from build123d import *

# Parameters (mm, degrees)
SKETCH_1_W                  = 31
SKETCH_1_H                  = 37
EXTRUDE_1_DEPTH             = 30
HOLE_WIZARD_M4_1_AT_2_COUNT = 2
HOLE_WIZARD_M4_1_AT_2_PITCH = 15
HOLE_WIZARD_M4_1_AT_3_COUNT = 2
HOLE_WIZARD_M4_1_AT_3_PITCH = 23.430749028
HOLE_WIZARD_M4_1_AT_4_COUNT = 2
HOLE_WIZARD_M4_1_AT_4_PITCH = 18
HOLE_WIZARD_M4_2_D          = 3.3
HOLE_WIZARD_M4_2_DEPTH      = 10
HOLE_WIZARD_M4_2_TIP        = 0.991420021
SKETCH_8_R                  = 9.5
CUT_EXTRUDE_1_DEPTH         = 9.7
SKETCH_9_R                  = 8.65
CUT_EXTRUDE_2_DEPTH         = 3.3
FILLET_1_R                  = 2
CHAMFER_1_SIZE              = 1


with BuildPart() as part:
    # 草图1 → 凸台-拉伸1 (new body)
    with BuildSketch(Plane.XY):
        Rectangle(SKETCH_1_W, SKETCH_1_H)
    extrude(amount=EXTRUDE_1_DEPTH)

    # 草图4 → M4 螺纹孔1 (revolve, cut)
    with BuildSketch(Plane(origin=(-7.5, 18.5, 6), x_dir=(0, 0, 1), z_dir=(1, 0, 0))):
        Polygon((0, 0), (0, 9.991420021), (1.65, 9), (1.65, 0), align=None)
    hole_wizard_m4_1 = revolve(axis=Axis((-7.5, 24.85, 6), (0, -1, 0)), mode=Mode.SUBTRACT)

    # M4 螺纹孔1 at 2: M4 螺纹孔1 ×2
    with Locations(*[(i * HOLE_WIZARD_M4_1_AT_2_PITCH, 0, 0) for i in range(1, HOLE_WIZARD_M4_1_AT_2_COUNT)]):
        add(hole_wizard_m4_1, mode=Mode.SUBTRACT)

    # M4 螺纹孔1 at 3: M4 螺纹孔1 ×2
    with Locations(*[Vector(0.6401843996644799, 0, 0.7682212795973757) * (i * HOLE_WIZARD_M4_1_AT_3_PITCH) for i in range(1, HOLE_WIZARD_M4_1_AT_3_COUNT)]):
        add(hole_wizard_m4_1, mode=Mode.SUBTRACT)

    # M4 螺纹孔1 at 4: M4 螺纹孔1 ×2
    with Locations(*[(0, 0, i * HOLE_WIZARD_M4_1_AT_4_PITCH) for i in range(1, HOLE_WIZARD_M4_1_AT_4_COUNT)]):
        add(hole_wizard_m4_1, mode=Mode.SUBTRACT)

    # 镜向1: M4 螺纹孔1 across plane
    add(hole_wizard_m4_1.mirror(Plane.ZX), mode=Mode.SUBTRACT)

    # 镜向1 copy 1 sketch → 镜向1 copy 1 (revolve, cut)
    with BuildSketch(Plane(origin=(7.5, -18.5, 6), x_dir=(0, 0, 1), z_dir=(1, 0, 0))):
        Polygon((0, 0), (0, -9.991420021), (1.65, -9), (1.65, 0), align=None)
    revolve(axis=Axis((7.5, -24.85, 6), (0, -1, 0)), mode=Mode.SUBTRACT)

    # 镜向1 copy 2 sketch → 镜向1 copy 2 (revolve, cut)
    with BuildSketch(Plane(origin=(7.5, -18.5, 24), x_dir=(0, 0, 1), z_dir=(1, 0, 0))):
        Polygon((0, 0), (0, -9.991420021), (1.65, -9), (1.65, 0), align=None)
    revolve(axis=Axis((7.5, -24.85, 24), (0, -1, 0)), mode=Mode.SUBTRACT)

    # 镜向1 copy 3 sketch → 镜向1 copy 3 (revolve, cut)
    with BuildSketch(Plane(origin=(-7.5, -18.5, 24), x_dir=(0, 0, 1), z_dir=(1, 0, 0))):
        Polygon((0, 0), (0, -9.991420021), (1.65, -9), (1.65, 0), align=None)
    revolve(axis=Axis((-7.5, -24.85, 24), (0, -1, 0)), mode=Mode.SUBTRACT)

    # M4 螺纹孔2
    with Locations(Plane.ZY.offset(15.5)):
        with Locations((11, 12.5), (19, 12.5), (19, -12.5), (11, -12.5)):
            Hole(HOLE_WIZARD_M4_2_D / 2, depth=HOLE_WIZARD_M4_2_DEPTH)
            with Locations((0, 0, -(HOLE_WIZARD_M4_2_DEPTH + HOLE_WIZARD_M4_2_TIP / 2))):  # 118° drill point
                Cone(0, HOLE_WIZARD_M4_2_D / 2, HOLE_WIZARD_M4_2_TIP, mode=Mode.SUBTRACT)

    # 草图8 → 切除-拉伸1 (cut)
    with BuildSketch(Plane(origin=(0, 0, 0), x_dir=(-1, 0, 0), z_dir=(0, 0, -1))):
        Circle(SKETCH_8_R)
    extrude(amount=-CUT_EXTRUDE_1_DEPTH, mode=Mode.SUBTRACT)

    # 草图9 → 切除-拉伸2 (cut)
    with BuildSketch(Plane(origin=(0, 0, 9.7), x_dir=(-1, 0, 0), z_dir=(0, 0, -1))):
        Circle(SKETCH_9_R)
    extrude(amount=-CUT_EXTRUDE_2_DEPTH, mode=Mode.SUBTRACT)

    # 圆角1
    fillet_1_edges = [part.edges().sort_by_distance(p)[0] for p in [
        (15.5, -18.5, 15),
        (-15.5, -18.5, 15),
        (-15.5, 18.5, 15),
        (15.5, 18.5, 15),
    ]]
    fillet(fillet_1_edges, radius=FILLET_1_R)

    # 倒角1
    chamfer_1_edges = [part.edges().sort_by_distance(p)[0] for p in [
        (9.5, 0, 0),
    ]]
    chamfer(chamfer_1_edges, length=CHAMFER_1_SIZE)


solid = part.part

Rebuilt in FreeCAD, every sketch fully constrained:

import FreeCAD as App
import Part
import Sketcher
from FreeCAD import Vector
Q = App.Units.Quantity


def edges_at(feature, points):
    """Names of the edges that pass closest to the given points."""
    edges = feature.Shape.Edges
    near = lambda p: min(range(len(edges)), key=lambda i: edges[i].distToShape(Part.Vertex(*p))[0])
    return sorted({f"Edge{near(p) + 1}" for p in points})

doc = App.newDocument("Part")
body = doc.addObject("PartDesign::Body", "Body")

sketch1 = doc.addObject("Sketcher::SketchObject", "Sketch")
body.addObject(sketch1)
sketch1.AttachmentSupport = (doc.XY_Plane, [""])
sketch1.MapMode = "FlatFace"
sketch1.addGeometry([
    Part.LineSegment(Vector(-16, 18, 0), Vector(-16, -18, 0)),
    Part.LineSegment(Vector(-16, -18, 0), Vector(16, -18, 0)),
    Part.LineSegment(Vector(16, -18, 0), Vector(16, 18, 0)),
    Part.LineSegment(Vector(16, 18, 0), Vector(-16, 18, 0)),
], False)
sketch1.addConstraint([
    Sketcher.Constraint("Coincident", 0, 2, 1, 1),
    Sketcher.Constraint("Coincident", 1, 2, 2, 1),
    Sketcher.Constraint("Coincident", 2, 2, 3, 1),
    Sketcher.Constraint("Coincident", 3, 2, 0, 1),
    Sketcher.Constraint("Vertical", 0),
    Sketcher.Constraint("Horizontal", 1),
    Sketcher.Constraint("Vertical", 2),
    Sketcher.Constraint("Horizontal", 3),
    Sketcher.Constraint("Symmetric", 0, 2, 2, 2, -1, 1),
    Sketcher.Constraint("DistanceX", 1, 1, 1, 2, Q("31 mm")),
    Sketcher.Constraint("DistanceY", 0, 2, 0, 1, Q("37 mm")),
])
pad1 = doc.addObject("PartDesign::Pad", "Pad")
body.addObject(pad1)
pad1.Profile = sketch1
pad1.Length = 30

sketch2 = doc.addObject("Sketcher::SketchObject", "Sketch001")
body.addObject(sketch2)
sketch2.AttachmentSupport = (doc.YZ_Plane, [""])
sketch2.MapMode = "FlatFace"
sketch2.AttachmentOffset = App.Placement(Vector(0, 0, -7.5), App.Rotation())
sketch2.addGeometry([
    Part.LineSegment(Vector(8.5, 6, 0), Vector(18.5, 6, 0)),
    Part.LineSegment(Vector(18.5, 6, 0), Vector(18.5, 7.7, 0)),
    Part.LineSegment(Vector(18.5, 7.7, 0), Vector(9.5, 7.7, 0)),
    Part.LineSegment(Vector(9.5, 7.7, 0), Vector(8.5, 6, 0)),
], False)
sketch2.addGeometry(Part.LineSegment(Vector(18.5, 6, 0), Vector(8.5, 6, 0)), True)
sketch2.addConstraint([
    Sketcher.Constraint("Coincident", 0, 2, 1, 1),
    Sketcher.Constraint("Coincident", 1, 2, 2, 1),
    Sketcher.Constraint("Coincident", 2, 2, 3, 1),
    Sketcher.Constraint("Coincident", 3, 2, 0, 1),
    Sketcher.Constraint("Horizontal", 0),
    Sketcher.Constraint("Vertical", 1),
    Sketcher.Constraint("Horizontal", 2),
    Sketcher.Constraint("Horizontal", 4),
    Sketcher.Constraint("Coincident", 4, 1, 0, 2),
    Sketcher.Constraint("Equal", 0, 4),
    Sketcher.Constraint("DistanceX", 2, 2, 2, 1, Q("9 mm")),
    Sketcher.Constraint("Angle", 3, Q("-121 deg")),
    Sketcher.Constraint("DistanceY", -1, 1, 0, 2, Q("6 mm")),
    Sketcher.Constraint("DistanceY", 1, 1, 1, 2, Q("1.65 mm")),
    Sketcher.Constraint("DistanceX", -1, 1, 0, 2, Q("18.5 mm")),
])
groove = doc.addObject("PartDesign::Groove", "Groove")
body.addObject(groove)
groove.Profile = sketch2
groove.ReferenceAxis = (sketch2, ["Axis0"])
groove.Angle = 360
doc.recompute()

linearpattern = doc.addObject("PartDesign::LinearPattern", "LinearPattern")
body.addObject(linearpattern)
linearpattern.Originals = [groove]
linearpattern.Direction = (doc.X_Axis, [""])
linearpattern.Mode = "offset"
linearpattern.Offset = 15
linearpattern.Occurrences = 2
body.Tip = linearpattern
doc.recompute()

datumline = doc.addObject("PartDesign::Line", "DatumLine")
body.addObject(datumline)
datumline.Placement = App.Placement(Vector(0, 0, 0), App.Rotation(Vector(0, 0, 1), Vector(0.6401844, 0, 0.76822128)))
linearpattern2 = doc.addObject("PartDesign::LinearPattern", "LinearPattern001")
body.addObject(linearpattern2)
linearpattern2.Originals = [groove]
linearpattern2.Direction = (datumline, [""])
linearpattern2.Mode = "offset"
linearpattern2.Offset = 23.430749
linearpattern2.Occurrences = 2
body.Tip = linearpattern2
doc.recompute()

linearpattern3 = doc.addObject("PartDesign::LinearPattern", "LinearPattern002")
body.addObject(linearpattern3)
linearpattern3.Originals = [groove]
linearpattern3.Direction = (doc.Z_Axis, [""])
linearpattern3.Mode = "offset"
linearpattern3.Offset = 18
linearpattern3.Occurrences = 2
body.Tip = linearpattern3
doc.recompute()

mirrored = doc.addObject("PartDesign::Mirrored", "Mirrored")
body.addObject(mirrored)
mirrored.Originals = [groove]
mirrored.MirrorPlane = (doc.XZ_Plane, [""])
body.Tip = mirrored

sketch3 = doc.addObject("Sketcher::SketchObject", "Sketch002")
body.addObject(sketch3)
sketch3.AttachmentSupport = (doc.YZ_Plane, [""])
sketch3.MapMode = "FlatFace"
sketch3.AttachmentOffset = App.Placement(Vector(0, 0, 7.5), App.Rotation())
sketch3.addGeometry([
    Part.LineSegment(Vector(-18.5, 6, 0), Vector(-8.5, 6, 0)),
    Part.LineSegment(Vector(-8.5, 6, 0), Vector(-9.5, 7.7, 0)),
    Part.LineSegment(Vector(-9.5, 7.7, 0), Vector(-18.5, 7.7, 0)),
    Part.LineSegment(Vector(-18.5, 7.7, 0), Vector(-18.5, 6, 0)),
], False)
sketch3.addGeometry(Part.LineSegment(Vector(-8.5, 6, 0), Vector(-18.5, 6, 0)), True)
sketch3.addConstraint([
    Sketcher.Constraint("Coincident", 0, 2, 1, 1),
    Sketcher.Constraint("Coincident", 1, 2, 2, 1),
    Sketcher.Constraint("Coincident", 2, 2, 3, 1),
    Sketcher.Constraint("Coincident", 3, 2, 0, 1),
    Sketcher.Constraint("Horizontal", 0),
    Sketcher.Constraint("Horizontal", 2),
    Sketcher.Constraint("Vertical", 3),
    Sketcher.Constraint("Horizontal", 4),
    Sketcher.Constraint("Coincident", 4, 1, 0, 2),
    Sketcher.Constraint("Vertical", 2, 2, 4, 2),
    Sketcher.Constraint("DistanceX", 2, 2, 2, 1, Q("9 mm")),
    Sketcher.Constraint("Angle", 1, Q("121 deg")),
    Sketcher.Constraint("DistanceY", -1, 1, 0, 2, Q("6 mm")),
    Sketcher.Constraint("DistanceY", 3, 2, 3, 1, Q("1.65 mm")),
    Sketcher.Constraint("DistanceX", 1, 2, -1, 1, Q("9.5 mm")),
])
groove2 = doc.addObject("PartDesign::Groove", "Groove001")
body.addObject(groove2)
groove2.Profile = sketch3
groove2.ReferenceAxis = (sketch3, ["Axis0"])
groove2.Angle = 360

sketch4 = doc.addObject("Sketcher::SketchObject", "Sketch003")
body.addObject(sketch4)
sketch4.AttachmentSupport = (doc.YZ_Plane, [""])
sketch4.MapMode = "FlatFace"
sketch4.AttachmentOffset = App.Placement(Vector(0, 0, 7.5), App.Rotation())
sketch4.addGeometry([
    Part.LineSegment(Vector(-18.5, 24, 0), Vector(-8.5, 24, 0)),
    Part.LineSegment(Vector(-8.5, 24, 0), Vector(-9.5, 25.6, 0)),
    Part.LineSegment(Vector(-9.5, 25.6, 0), Vector(-18.5, 25.6, 0)),
    Part.LineSegment(Vector(-18.5, 25.6, 0), Vector(-18.5, 24, 0)),
], False)
sketch4.addGeometry(Part.LineSegment(Vector(-8.5, 24, 0), Vector(-18.5, 24, 0)), True)
sketch4.addConstraint([
    Sketcher.Constraint("Coincident", 0, 2, 1, 1),
    Sketcher.Constraint("Coincident", 1, 2, 2, 1),
    Sketcher.Constraint("Coincident", 2, 2, 3, 1),
    Sketcher.Constraint("Coincident", 3, 2, 0, 1),
    Sketcher.Constraint("Horizontal", 0),
    Sketcher.Constraint("Horizontal", 2),
    Sketcher.Constraint("Vertical", 3),
    Sketcher.Constraint("Horizontal", 4),
    Sketcher.Constraint("Coincident", 4, 1, 0, 2),
    Sketcher.Constraint("Vertical", 2, 2, 4, 2),
    Sketcher.Constraint("DistanceX", 2, 2, 2, 1, Q("9 mm")),
    Sketcher.Constraint("Angle", 1, Q("121 deg")),
    Sketcher.Constraint("DistanceY", -1, 1, 0, 2, Q("24 mm")),
    Sketcher.Constraint("DistanceY", 3, 2, 3, 1, Q("1.65 mm")),
    Sketcher.Constraint("DistanceX", 1, 2, -1, 1, Q("9.5 mm")),
])
groove3 = doc.addObject("PartDesign::Groove", "Groove002")
body.addObject(groove3)
groove3.Profile = sketch4
groove3.ReferenceAxis = (sketch4, ["Axis0"])
groove3.Angle = 360

sketch5 = doc.addObject("Sketcher::SketchObject", "Sketch004")
body.addObject(sketch5)
sketch5.AttachmentSupport = (doc.YZ_Plane, [""])
sketch5.MapMode = "FlatFace"
sketch5.AttachmentOffset = App.Placement(Vector(0, 0, -7.5), App.Rotation())
sketch5.addGeometry([
    Part.LineSegment(Vector(-18.5, 24, 0), Vector(-8.5, 24, 0)),
    Part.LineSegment(Vector(-8.5, 24, 0), Vector(-9.5, 25.6, 0)),
    Part.LineSegment(Vector(-9.5, 25.6, 0), Vector(-18.5, 25.6, 0)),
    Part.LineSegment(Vector(-18.5, 25.6, 0), Vector(-18.5, 24, 0)),
], False)
sketch5.addGeometry(Part.LineSegment(Vector(-8.5, 24, 0), Vector(-18.5, 24, 0)), True)
sketch5.addConstraint([
    Sketcher.Constraint("Coincident", 0, 2, 1, 1),
    Sketcher.Constraint("Coincident", 1, 2, 2, 1),
    Sketcher.Constraint("Coincident", 2, 2, 3, 1),
    Sketcher.Constraint("Coincident", 3, 2, 0, 1),
    Sketcher.Constraint("Horizontal", 0),
    Sketcher.Constraint("Horizontal", 2),
    Sketcher.Constraint("Vertical", 3),
    Sketcher.Constraint("Horizontal", 4),
    Sketcher.Constraint("Coincident", 4, 1, 0, 2),
    Sketcher.Constraint("Vertical", 2, 2, 4, 2),
    Sketcher.Constraint("DistanceX", 2, 2, 2, 1, Q("9 mm")),
    Sketcher.Constraint("Angle", 1, Q("121 deg")),
    Sketcher.Constraint("DistanceY", -1, 1, 0, 2, Q("24 mm")),
    Sketcher.Constraint("DistanceY", 3, 2, 3, 1, Q("1.65 mm")),
    Sketcher.Constraint("DistanceX", 1, 2, -1, 1, Q("9.5 mm")),
])
groove4 = doc.addObject("PartDesign::Groove", "Groove003")
body.addObject(groove4)
groove4.Profile = sketch5
groove4.ReferenceAxis = (sketch5, ["Axis0"])
groove4.Angle = 360

sketch6 = doc.addObject("Sketcher::SketchObject", "Sketch005")
body.addObject(sketch6)
sketch6.AttachmentSupport = (doc.YZ_Plane, [""])
sketch6.MapMode = "FlatFace"
sketch6.AttachmentOffset = App.Placement(Vector(0, 0, -15.5), App.Rotation())
sketch6.addGeometry([
    Part.Circle(Vector(12.5, 11, 0), Vector(0, 0, 1), 1.6),
    Part.Circle(Vector(12.5, 19, 0), Vector(0, 0, 1), 1.6),
    Part.Circle(Vector(-12.5, 19, 0), Vector(0, 0, 1), 1.6),
    Part.Circle(Vector(-12.5, 11, 0), Vector(0, 0, 1), 1.6),
], False)
sketch6.addConstraint([
    Sketcher.Constraint("Equal", 0, 1),
    Sketcher.Constraint("Equal", 1, 2),
    Sketcher.Constraint("Equal", 2, 3),
    Sketcher.Constraint("Symmetric", 1, 3, 2, 3, -2),
    Sketcher.Constraint("Symmetric", 0, 3, 3, 3, -2),
    Sketcher.Constraint("Vertical", 0, 3, 1, 3),
    Sketcher.Constraint("Diameter", 0, Q("3.3 mm")),
    Sketcher.Constraint("DistanceY", -1, 1, 0, 3, Q("11 mm")),
    Sketcher.Constraint("DistanceY", -1, 1, 1, 3, Q("19 mm")),
    Sketcher.Constraint("DistanceX", 2, 3, 1, 3, Q("25 mm")),
])
doc.recompute()
hole = doc.addObject("PartDesign::Hole", "Hole")
body.addObject(hole)
hole.Profile = sketch6
hole.ThreadType = "None"
hole.Diameter = 3.3
hole.DepthType = "Dimension"
hole.Depth = 10
hole.DrillPoint = "Angled"
hole.DrillPointAngle = 118
hole.Reversed = True

sketch7 = doc.addObject("Sketcher::SketchObject", "Sketch006")
body.addObject(sketch7)
sketch7.AttachmentSupport = (doc.XY_Plane, [""])
sketch7.MapMode = "FlatFace"
sketch7.addGeometry(Part.Circle(Vector(0, 0, 0), Vector(0, 0, 1), 10), False)
sketch7.addConstraint([
    Sketcher.Constraint("Coincident", 0, 3, -1, 1),
    Sketcher.Constraint("Diameter", 0, Q("19 mm")),
])
pocket1 = doc.addObject("PartDesign::Pocket", "Pocket")
body.addObject(pocket1)
pocket1.Profile = sketch7
pocket1.Length = 9.7
pocket1.Reversed = True

sketch8 = doc.addObject("Sketcher::SketchObject", "Sketch007")
body.addObject(sketch8)
sketch8.AttachmentSupport = (doc.XY_Plane, [""])
sketch8.MapMode = "FlatFace"
sketch8.AttachmentOffset = App.Placement(Vector(0, 0, 9.7), App.Rotation())
sketch8.addGeometry(Part.Circle(Vector(0, 0, 0), Vector(0, 0, 1), 9), False)
sketch8.addConstraint([
    Sketcher.Constraint("Coincident", 0, 3, -1, 1),
    Sketcher.Constraint("Diameter", 0, Q("17.3 mm")),
])
pocket2 = doc.addObject("PartDesign::Pocket", "Pocket001")
body.addObject(pocket2)
pocket2.Profile = sketch8
pocket2.Length = 3.3
pocket2.Reversed = True
doc.recompute()

fillet = doc.addObject("PartDesign::Fillet", "Fillet")
body.addObject(fillet)
fillet.Base = (pocket2, edges_at(pocket2, [
    (15.5, -18.5, 15),
    (-15.5, -18.5, 15),
    (-15.5, 18.5, 15),
    (15.5, 18.5, 15),
]))
fillet.Radius = 2
doc.recompute()

chamfer = doc.addObject("PartDesign::Chamfer", "Chamfer")
body.addObject(chamfer)
chamfer.Base = (fillet, edges_at(fillet, [(9.5, 0, 0)]))
chamfer.Size = 1

doc.recompute()
